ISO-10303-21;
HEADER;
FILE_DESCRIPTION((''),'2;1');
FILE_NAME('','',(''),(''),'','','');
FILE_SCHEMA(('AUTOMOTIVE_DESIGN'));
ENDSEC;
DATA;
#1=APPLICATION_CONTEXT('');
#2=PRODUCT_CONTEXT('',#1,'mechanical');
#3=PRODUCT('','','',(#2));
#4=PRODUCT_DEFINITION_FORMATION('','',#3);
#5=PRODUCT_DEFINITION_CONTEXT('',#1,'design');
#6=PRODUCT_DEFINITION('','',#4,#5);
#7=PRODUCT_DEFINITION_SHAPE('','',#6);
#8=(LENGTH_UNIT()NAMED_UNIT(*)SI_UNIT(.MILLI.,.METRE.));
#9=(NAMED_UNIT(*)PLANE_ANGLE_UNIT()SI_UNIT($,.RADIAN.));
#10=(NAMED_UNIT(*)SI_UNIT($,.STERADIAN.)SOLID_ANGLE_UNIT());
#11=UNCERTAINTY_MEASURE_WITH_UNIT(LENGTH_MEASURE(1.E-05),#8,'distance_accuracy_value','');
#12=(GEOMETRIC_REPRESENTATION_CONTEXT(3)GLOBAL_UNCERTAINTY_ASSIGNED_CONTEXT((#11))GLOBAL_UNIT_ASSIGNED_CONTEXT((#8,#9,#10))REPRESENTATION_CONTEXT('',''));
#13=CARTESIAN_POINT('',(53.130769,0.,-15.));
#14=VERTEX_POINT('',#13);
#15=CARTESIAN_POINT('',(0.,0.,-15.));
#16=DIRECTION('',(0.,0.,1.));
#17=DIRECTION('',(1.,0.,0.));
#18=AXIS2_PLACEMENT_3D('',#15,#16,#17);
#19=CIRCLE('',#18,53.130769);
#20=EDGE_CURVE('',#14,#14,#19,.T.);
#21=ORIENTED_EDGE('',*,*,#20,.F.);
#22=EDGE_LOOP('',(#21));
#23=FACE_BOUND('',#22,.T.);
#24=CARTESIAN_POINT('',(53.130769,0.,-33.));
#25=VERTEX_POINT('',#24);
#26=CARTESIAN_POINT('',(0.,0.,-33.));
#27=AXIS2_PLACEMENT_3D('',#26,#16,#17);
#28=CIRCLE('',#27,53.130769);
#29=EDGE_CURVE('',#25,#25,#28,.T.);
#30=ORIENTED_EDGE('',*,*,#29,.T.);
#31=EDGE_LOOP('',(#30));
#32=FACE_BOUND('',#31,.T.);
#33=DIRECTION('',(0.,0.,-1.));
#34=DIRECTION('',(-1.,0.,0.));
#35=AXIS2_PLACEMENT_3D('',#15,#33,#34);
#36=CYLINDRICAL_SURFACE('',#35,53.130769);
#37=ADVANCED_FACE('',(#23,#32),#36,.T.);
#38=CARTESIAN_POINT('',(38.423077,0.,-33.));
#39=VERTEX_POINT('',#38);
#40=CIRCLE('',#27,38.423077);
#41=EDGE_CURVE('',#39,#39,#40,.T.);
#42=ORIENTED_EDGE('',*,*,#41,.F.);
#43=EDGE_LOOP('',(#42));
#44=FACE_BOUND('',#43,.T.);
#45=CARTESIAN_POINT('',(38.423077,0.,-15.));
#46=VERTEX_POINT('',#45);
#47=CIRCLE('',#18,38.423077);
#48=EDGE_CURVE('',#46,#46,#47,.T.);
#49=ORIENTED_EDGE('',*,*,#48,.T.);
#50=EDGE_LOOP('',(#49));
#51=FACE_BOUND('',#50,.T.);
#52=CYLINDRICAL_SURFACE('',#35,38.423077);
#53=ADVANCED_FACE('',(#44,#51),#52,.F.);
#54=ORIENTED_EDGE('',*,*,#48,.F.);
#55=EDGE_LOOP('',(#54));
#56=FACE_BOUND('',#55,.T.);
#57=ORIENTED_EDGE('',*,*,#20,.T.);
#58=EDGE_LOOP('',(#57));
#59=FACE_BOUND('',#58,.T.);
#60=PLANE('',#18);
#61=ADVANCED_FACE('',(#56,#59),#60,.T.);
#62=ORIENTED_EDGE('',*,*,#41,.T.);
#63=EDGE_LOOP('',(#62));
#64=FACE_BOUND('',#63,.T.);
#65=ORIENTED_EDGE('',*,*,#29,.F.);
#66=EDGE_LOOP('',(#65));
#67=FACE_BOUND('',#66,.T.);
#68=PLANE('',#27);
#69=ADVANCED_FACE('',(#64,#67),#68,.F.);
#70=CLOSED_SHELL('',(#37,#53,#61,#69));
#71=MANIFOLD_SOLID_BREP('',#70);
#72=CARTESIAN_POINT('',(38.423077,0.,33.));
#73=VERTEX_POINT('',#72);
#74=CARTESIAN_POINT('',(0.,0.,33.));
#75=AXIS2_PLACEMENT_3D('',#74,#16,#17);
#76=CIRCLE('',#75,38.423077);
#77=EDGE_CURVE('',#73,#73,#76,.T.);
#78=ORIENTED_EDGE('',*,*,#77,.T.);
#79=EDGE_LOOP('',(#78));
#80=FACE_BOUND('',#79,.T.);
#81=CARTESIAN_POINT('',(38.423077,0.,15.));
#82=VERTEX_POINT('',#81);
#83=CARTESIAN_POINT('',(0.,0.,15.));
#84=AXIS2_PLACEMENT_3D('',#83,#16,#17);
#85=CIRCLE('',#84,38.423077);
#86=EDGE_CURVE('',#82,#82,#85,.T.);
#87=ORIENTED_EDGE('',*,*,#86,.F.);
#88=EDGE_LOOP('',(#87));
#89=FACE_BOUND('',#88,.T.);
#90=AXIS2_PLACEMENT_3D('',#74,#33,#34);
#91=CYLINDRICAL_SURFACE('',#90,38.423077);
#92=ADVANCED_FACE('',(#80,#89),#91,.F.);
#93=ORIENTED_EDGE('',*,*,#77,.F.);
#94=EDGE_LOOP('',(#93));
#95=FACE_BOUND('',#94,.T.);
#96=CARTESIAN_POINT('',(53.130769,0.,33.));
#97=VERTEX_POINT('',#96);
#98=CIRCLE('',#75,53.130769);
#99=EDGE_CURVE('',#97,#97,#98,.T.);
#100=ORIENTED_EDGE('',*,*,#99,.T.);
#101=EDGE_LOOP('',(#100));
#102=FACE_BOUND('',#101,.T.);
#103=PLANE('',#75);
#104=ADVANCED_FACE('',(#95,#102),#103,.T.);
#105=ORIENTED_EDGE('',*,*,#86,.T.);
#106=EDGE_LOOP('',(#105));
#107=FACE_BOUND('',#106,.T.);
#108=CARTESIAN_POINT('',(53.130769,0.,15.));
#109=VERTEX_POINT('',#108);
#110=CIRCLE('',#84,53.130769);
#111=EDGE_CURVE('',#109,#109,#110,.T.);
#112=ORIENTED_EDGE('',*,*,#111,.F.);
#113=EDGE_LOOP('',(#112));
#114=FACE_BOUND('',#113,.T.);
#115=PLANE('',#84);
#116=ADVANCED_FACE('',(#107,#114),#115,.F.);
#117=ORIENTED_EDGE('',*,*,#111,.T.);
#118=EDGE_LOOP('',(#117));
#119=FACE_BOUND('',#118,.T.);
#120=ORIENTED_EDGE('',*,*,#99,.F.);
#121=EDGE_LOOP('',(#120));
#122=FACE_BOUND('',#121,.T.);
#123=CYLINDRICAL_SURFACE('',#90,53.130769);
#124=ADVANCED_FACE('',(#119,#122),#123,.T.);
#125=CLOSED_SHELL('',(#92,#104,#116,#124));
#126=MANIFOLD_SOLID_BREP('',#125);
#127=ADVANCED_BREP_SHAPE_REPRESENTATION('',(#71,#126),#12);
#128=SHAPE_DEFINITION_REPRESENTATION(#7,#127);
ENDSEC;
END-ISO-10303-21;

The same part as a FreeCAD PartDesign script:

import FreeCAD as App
import Part
import Sketcher

doc = App.newDocument("Part")
body = doc.addObject("PartDesign::Body", "Body")

# Sketch on XY plane
sketch1 = body.newObject("Sketcher::SketchObject", "Sketch")
sketch1.AttachmentSupport = (doc.getObject("XY_Plane"), [""])
sketch1.MapMode = "FlatFace"
sketch1.AttachmentOffset = App.Placement(App.Vector(0, 0, 15), App.Rotation())
sketch1.addGeometry([
    Part.Circle(App.Vector(0, 0, 0), App.Vector(0, 0, 1), 53),
    Part.Circle(App.Vector(0, 0, 0), App.Vector(0, 0, 1), 38),
], False)
sketch1.addConstraint([
    Sketcher.Constraint("Coincident", 0, 3, -1, 1),
    Sketcher.Constraint("Coincident", 1, 3, -1, 1),
    Sketcher.Constraint("Diameter", 0, 106.261538),
    Sketcher.Constraint("Diameter", 1, 76.846154),
])
pad1 = body.newObject("PartDesign::Pad", "Pad")
pad1.Profile = sketch1
pad1.Length = 18
body2 = doc.addObject("PartDesign::Body", "Body001")

# Sketch on XY plane
sketch2 = body2.newObject("Sketcher::SketchObject", "Sketch001")
sketch2.AttachmentSupport = (doc.getObject("XY_Plane001"), [""])
sketch2.MapMode = "FlatFace"
sketch2.AttachmentOffset = App.Placement(App.Vector(0, 0, -33), App.Rotation())
sketch2.addGeometry([
    Part.Circle(App.Vector(0, 0, 0), App.Vector(0, 0, 1), 53),
    Part.Circle(App.Vector(0, 0, 0), App.Vector(0, 0, 1), 38),
], False)
sketch2.addConstraint([
    Sketcher.Constraint("Coincident", 0, 3, -1, 1),
    Sketcher.Constraint("Coincident", 1, 3, -1, 1),
    Sketcher.Constraint("Diameter", 0, 106.261538),
    Sketcher.Constraint("Diameter", 1, 76.846154),
])
pad2 = body2.newObject("PartDesign::Pad", "Pad001")
pad2.Profile = sketch2
pad2.Length = 18

doc.recompute()
